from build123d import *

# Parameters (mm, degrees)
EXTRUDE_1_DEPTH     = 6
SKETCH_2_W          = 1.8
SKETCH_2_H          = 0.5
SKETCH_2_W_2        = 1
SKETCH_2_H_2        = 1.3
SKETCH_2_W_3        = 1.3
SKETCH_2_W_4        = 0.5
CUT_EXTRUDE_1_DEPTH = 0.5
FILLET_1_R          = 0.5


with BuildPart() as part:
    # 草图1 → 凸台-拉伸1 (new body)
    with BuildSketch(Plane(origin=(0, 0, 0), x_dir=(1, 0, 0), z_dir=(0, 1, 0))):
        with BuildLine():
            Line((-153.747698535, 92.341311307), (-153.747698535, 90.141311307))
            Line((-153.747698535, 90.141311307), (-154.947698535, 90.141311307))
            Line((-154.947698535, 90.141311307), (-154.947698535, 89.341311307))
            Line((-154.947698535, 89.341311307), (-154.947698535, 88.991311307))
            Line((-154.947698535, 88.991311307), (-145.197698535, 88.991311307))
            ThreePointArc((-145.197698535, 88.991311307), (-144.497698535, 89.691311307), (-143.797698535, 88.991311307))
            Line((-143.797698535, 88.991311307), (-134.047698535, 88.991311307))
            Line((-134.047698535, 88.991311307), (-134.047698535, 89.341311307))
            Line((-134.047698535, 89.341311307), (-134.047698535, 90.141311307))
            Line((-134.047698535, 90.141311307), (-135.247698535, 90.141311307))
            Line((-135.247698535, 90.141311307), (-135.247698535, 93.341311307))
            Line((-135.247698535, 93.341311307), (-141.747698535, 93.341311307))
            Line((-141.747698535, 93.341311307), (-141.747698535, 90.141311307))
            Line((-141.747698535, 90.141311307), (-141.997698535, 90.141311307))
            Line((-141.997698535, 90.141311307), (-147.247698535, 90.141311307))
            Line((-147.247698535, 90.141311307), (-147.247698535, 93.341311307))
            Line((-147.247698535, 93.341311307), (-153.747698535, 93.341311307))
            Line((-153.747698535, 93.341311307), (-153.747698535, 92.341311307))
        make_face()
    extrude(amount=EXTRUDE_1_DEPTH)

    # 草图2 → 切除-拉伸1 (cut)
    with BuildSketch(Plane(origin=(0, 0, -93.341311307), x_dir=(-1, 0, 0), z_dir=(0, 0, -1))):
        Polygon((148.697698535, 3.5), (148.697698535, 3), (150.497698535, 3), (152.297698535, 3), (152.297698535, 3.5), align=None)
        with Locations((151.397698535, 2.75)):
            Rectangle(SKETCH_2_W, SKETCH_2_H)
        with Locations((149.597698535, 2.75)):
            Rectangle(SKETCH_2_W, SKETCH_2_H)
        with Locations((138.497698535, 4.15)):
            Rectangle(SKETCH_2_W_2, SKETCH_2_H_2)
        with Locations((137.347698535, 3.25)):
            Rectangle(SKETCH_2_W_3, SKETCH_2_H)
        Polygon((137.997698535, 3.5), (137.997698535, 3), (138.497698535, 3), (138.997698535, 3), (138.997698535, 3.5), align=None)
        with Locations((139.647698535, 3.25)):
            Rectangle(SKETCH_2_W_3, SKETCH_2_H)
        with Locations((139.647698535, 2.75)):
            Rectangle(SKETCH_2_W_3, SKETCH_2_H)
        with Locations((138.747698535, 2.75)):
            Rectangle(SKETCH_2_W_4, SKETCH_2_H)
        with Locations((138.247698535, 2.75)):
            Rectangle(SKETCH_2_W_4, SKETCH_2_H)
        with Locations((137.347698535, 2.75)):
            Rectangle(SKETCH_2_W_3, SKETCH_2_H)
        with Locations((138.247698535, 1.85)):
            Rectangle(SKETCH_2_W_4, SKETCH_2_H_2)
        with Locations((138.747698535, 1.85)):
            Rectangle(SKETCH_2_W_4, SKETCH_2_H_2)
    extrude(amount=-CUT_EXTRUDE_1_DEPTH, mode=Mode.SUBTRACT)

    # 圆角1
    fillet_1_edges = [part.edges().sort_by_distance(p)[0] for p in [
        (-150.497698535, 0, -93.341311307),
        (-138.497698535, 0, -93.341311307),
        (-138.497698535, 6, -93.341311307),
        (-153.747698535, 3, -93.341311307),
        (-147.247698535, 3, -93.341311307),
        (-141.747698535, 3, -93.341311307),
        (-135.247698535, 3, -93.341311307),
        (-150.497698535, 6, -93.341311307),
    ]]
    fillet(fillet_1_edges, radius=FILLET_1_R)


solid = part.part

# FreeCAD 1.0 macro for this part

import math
import FreeCAD as App
import Part
import Sketcher


def edges_at(feature, points):
    """Names of the edges that pass closest to the given points."""
    edges = feature.Shape.Edges
    near = lambda p: min(range(len(edges)), key=lambda i: edges[i].distToShape(Part.Vertex(*p))[0])
    return sorted({f"Edge{near(p) + 1}" for p in points})

doc = App.newDocument("Part")
body = doc.addObject("PartDesign::Body", "Body")

sketch1 = doc.addObject("Sketcher::SketchObject", "Sketch")
body.addObject(sketch1)
sketch1.AttachmentSupport = (doc.XZ_Plane, [""])
sketch1.MapMode = "FlatFace"
sketch1.addGeometry([
    Part.LineSegment(App.Vector(-153.747699, -90.141311, 0), App.Vector(-154.947699, -90.141311, 0)),
    Part.LineSegment(App.Vector(-154.947699, -90.141311, 0), App.Vector(-154.947699, -88.991311, 0)),
    Part.LineSegment(App.Vector(-154.947699, -88.991311, 0), App.Vector(-145.197699, -88.991311, 0)),
    Part.ArcOfCircle(Part.Circle(App.Vector(-144.497699, -88.991311, 0), App.Vector(0, 0, 1), 0.7), math.radians(180), math.radians(360)),
    Part.LineSegment(App.Vector(-143.797699, -88.991311, 0), App.Vector(-134.047699, -88.991311, 0)),
    Part.LineSegment(App.Vector(-134.047699, -88.991311, 0), App.Vector(-134.047699, -90.141311, 0)),
    Part.LineSegment(App.Vector(-134.047699, -90.141311, 0), App.Vector(-135.247699, -90.141311, 0)),
    Part.LineSegment(App.Vector(-135.247699, -90.141311, 0), App.Vector(-135.247699, -93.341311, 0)),
    Part.LineSegment(App.Vector(-135.247699, -93.341311, 0), App.Vector(-141.747699, -93.341311, 0)),
    Part.LineSegment(App.Vector(-141.747699, -93.341311, 0), App.Vector(-141.747699, -90.141311, 0)),
    Part.LineSegment(App.Vector(-141.747699, -90.141311, 0), App.Vector(-147.247699, -90.141311, 0)),
    Part.LineSegment(App.Vector(-147.247699, -90.141311, 0), App.Vector(-147.247699, -93.341311, 0)),
    Part.LineSegment(App.Vector(-147.247699, -93.341311, 0), App.Vector(-153.747699, -93.341311, 0)),
    Part.LineSegment(App.Vector(-153.747699, -93.341311, 0), App.Vector(-153.747699, -90.141311, 0)),
], False)
sketch1.addConstraint([
    Sketcher.Constraint("Coincident", 0, 2, 1, 1),
    Sketcher.Constraint("Coincident", 1, 2, 2, 1),
    Sketcher.Constraint("Coincident", 2, 2, 3, 1),
    Sketcher.Constraint("Coincident", 3, 2, 4, 1),
    Sketcher.Constraint("Coincident", 4, 2, 5, 1),
    Sketcher.Constraint("Coincident", 5, 2, 6, 1),
    Sketcher.Constraint("Coincident", 6, 2, 7, 1),
    Sketcher.Constraint("Coincident", 7, 2, 8, 1),
    Sketcher.Constraint("Coincident", 8, 2, 9, 1),
    Sketcher.Constraint("Coincident", 9, 2, 10, 1),
    Sketcher.Constraint("Coincident", 10, 2, 11, 1),
    Sketcher.Constraint("Coincident", 11, 2, 12, 1),
    Sketcher.Constraint("Coincident", 12, 2, 13, 1),
    Sketcher.Constraint("Coincident", 13, 2, 0, 1),
    Sketcher.Constraint("Horizontal", 0),
    Sketcher.Constraint("Vertical", 1),
    Sketcher.Constraint("Horizontal", 2),
    Sketcher.Constraint("Horizontal", 4),
    Sketcher.Constraint("Vertical", 5),
    Sketcher.Constraint("Horizontal", 6),
    Sketcher.Constraint("Vertical", 7),
    Sketcher.Constraint("Horizontal", 8),
    Sketcher.Constraint("Vertical", 9),
    Sketcher.Constraint("Horizontal", 10),
    Sketcher.Constraint("Vertical", 11),
    Sketcher.Constraint("Horizontal", 12),
    Sketcher.Constraint("Vertical", 13),
    Sketcher.Constraint("Horizontal", 3, 3, 1, 2),
    Sketcher.Constraint("Horizontal", 2, 2, 3, 2),
    Sketcher.Constraint("Horizontal", 0, 2, 5, 2),
    Sketcher.Constraint("Horizontal", 6, 2, 9, 2),
    Sketcher.Constraint("Horizontal", 8, 2, 11, 2),
    Sketcher.Constraint("Equal", 2, 4),
    Sketcher.Constraint("Equal", 0, 6),
    Sketcher.Constraint("Equal", 8, 12),
    Sketcher.Constraint("Radius", 3, 0.7),
    Sketcher.Constraint("DistanceX", 0, 2, 0, 1, 1.2),
    Sketcher.Constraint("DistanceX", 8, 2, 8, 1, 6.5),
    Sketcher.Constraint("DistanceX", 10, 2, 10, 1, 5.5),
    Sketcher.Constraint("DistanceY", 7, 2, 7, 1, 3.2),
    Sketcher.Constraint("DistanceY", 1, 1, 1, 2, 1.15),
    Sketcher.Constraint("DistanceX", 3, 3, -1, 1, 144.497699),
    Sketcher.Constraint("DistanceY", 3, 3, -1, 1, 88.991311),
])
pad1 = doc.addObject("PartDesign::Pad", "Pad")
body.addObject(pad1)
pad1.Profile = sketch1
pad1.Length = 6
pad1.Reversed = True

sketch2 = doc.addObject("Sketcher::SketchObject", "Sketch001")
body.addObject(sketch2)
sketch2.AttachmentSupport = (doc.XY_Plane, [""])
sketch2.MapMode = "FlatFace"
sketch2.AttachmentOffset = App.Placement(App.Vector(0, 0, -93.341311), App.Rotation())
sketch2.addGeometry([
    Part.LineSegment(App.Vector(-148.697699, 3.5, 0), App.Vector(-148.697699, 2.5, 0)),
    Part.LineSegment(App.Vector(-148.697699, 2.5, 0), App.Vector(-152.297699, 2.5, 0)),
    Part.LineSegment(App.Vector(-152.297699, 2.5, 0), App.Vector(-152.297699, 3.5, 0)),
    Part.LineSegment(App.Vector(-152.297699, 3.5, 0), App.Vector(-148.697699, 3.5, 0)),
    Part.LineSegment(App.Vector(-137.997699, 4.8, 0), App.Vector(-137.997699, 3.5, 0)),
    Part.LineSegment(App.Vector(-137.997699, 3.5, 0), App.Vector(-136.697699, 3.5, 0)),
    Part.LineSegment(App.Vector(-136.697699, 3.5, 0), App.Vector(-136.697699, 2.5, 0)),
    Part.LineSegment(App.Vector(-136.697699, 2.5, 0), App.Vector(-137.997699, 2.5, 0)),
    Part.LineSegment(App.Vector(-137.997699, 2.5, 0), App.Vector(-137.997699, 1.2, 0)),
    Part.LineSegment(App.Vector(-137.997699, 1.2, 0), App.Vector(-138.997699, 1.2, 0)),
    Part.LineSegment(App.Vector(-138.997699, 1.2, 0), App.Vector(-138.997699, 2.5, 0)),
    Part.LineSegment(App.Vector(-138.997699, 2.5, 0), App.Vector(-140.297699, 2.5, 0)),
    Part.LineSegment(App.Vector(-140.297699, 2.5, 0), App.Vector(-140.297699, 3.5, 0)),
    Part.LineSegment(App.Vector(-140.297699, 3.5, 0), App.Vector(-138.997699, 3.5, 0)),
    Part.LineSegment(App.Vector(-138.997699, 3.5, 0), App.Vector(-138.997699, 4.8, 0)),
    Part.LineSegment(App.Vector(-138.997699, 4.8, 0), App.Vector(-137.997699, 4.8, 0)),
], False)
sketch2.addConstraint([
    Sketcher.Constraint("Coincident", 0, 2, 1, 1),
    Sketcher.Constraint("Coincident", 1, 2, 2, 1),
    Sketcher.Constraint("Coincident", 2, 2, 3, 1),
    Sketcher.Constraint("Coincident", 3, 2, 0, 1),
    Sketcher.Constraint("Coincident", 4, 2, 5, 1),
    Sketcher.Constraint("Coincident", 5, 2, 6, 1),
    Sketcher.Constraint("Coincident", 6, 2, 7, 1),
    Sketcher.Constraint("Coincident", 7, 2, 8, 1),
    Sketcher.Constraint("Coincident", 8, 2, 9, 1),
    Sketcher.Constraint("Coincident", 9, 2, 10, 1),
    Sketcher.Constraint("Coincident", 10, 2, 11, 1),
    Sketcher.Constraint("Coincident", 11, 2, 12, 1),
    Sketcher.Constraint("Coincident", 12, 2, 13, 1),
    Sketcher.Constraint("Coincident", 13, 2, 14, 1),
    Sketcher.Constraint("Coincident", 14, 2, 15, 1),
    Sketcher.Constraint("Coincident", 15, 2, 4, 1),
    Sketcher.Constraint("Vertical", 0),
    Sketcher.Constraint("Horizontal", 1),
    Sketcher.Constraint("Vertical", 2),
    Sketcher.Constraint("Horizontal", 3),
    Sketcher.Constraint("Vertical", 4),
    Sketcher.Constraint("Horizontal", 5),
    Sketcher.Constraint("Vertical", 6),
    Sketcher.Constraint("Horizontal", 7),
    Sketcher.Constraint("Vertical", 8),
    Sketcher.Constraint("Horizontal", 9),
    Sketcher.Constraint("Vertical", 10),
    Sketcher.Constraint("Horizontal", 11),
    Sketcher.Constraint("Vertical", 12),
    Sketcher.Constraint("Horizontal", 13),
    Sketcher.Constraint("Vertical", 14),
    Sketcher.Constraint("Horizontal", 15),
    Sketcher.Constraint("Horizontal", 3, 2, 4, 2),
    Sketcher.Constraint("Horizontal", 1, 2, 6, 2),
    Sketcher.Constraint("Horizontal", 7, 2, 10, 2),
    Sketcher.Constraint("Horizontal", 5, 2, 12, 2),
    Sketcher.Constraint("Vertical", 4, 2, 7, 2),
    Sketcher.Constraint("Vertical", 10, 2, 13, 2),
    Sketcher.Constraint("Equal", 7, 11),
    Sketcher.Constraint("Equal", 15, 0),
    Sketcher.Constraint("Equal", 13, 4),
    Sketcher.Constraint("Equal", 4, 8),
    Sketcher.Constraint("DistanceX", 9, 2, 9, 1, 1.0),
    Sketcher.Constraint("DistanceX", 1, 2, 1, 1, 3.6),
    Sketcher.Constraint("DistanceX", 5, 1, 5, 2, 1.3),
    Sketcher.Constraint("DistanceX", 3, 2, 5, 2, 12.0),
    Sketcher.Constraint("DistanceY", -1, 1, 0, 2, 2.5),
    Sketcher.Constraint("DistanceX", 0, 2, -1, 1, 148.697699),
])
pocket1 = doc.addObject("PartDesign::Pocket", "Pocket")
body.addObject(pocket1)
pocket1.Profile = sketch2
pocket1.Length = 0.5
pocket1.Reversed = True
doc.recompute()

fillet = doc.addObject("PartDesign::Fillet", "Fillet")
body.addObject(fillet)
fillet.Base = (pocket1, edges_at(pocket1, [
    (-150.498, 0, -93.341),
    (-138.498, 0, -93.341),
    (-138.498, 6, -93.341),
    (-153.748, 3, -93.341),
    (-147.248, 3, -93.341),
    (-141.748, 3, -93.341),
    (-135.248, 3, -93.341),
    (-150.498, 6, -93.341),
]))
fillet.Radius = 0.5

doc.recompute()
